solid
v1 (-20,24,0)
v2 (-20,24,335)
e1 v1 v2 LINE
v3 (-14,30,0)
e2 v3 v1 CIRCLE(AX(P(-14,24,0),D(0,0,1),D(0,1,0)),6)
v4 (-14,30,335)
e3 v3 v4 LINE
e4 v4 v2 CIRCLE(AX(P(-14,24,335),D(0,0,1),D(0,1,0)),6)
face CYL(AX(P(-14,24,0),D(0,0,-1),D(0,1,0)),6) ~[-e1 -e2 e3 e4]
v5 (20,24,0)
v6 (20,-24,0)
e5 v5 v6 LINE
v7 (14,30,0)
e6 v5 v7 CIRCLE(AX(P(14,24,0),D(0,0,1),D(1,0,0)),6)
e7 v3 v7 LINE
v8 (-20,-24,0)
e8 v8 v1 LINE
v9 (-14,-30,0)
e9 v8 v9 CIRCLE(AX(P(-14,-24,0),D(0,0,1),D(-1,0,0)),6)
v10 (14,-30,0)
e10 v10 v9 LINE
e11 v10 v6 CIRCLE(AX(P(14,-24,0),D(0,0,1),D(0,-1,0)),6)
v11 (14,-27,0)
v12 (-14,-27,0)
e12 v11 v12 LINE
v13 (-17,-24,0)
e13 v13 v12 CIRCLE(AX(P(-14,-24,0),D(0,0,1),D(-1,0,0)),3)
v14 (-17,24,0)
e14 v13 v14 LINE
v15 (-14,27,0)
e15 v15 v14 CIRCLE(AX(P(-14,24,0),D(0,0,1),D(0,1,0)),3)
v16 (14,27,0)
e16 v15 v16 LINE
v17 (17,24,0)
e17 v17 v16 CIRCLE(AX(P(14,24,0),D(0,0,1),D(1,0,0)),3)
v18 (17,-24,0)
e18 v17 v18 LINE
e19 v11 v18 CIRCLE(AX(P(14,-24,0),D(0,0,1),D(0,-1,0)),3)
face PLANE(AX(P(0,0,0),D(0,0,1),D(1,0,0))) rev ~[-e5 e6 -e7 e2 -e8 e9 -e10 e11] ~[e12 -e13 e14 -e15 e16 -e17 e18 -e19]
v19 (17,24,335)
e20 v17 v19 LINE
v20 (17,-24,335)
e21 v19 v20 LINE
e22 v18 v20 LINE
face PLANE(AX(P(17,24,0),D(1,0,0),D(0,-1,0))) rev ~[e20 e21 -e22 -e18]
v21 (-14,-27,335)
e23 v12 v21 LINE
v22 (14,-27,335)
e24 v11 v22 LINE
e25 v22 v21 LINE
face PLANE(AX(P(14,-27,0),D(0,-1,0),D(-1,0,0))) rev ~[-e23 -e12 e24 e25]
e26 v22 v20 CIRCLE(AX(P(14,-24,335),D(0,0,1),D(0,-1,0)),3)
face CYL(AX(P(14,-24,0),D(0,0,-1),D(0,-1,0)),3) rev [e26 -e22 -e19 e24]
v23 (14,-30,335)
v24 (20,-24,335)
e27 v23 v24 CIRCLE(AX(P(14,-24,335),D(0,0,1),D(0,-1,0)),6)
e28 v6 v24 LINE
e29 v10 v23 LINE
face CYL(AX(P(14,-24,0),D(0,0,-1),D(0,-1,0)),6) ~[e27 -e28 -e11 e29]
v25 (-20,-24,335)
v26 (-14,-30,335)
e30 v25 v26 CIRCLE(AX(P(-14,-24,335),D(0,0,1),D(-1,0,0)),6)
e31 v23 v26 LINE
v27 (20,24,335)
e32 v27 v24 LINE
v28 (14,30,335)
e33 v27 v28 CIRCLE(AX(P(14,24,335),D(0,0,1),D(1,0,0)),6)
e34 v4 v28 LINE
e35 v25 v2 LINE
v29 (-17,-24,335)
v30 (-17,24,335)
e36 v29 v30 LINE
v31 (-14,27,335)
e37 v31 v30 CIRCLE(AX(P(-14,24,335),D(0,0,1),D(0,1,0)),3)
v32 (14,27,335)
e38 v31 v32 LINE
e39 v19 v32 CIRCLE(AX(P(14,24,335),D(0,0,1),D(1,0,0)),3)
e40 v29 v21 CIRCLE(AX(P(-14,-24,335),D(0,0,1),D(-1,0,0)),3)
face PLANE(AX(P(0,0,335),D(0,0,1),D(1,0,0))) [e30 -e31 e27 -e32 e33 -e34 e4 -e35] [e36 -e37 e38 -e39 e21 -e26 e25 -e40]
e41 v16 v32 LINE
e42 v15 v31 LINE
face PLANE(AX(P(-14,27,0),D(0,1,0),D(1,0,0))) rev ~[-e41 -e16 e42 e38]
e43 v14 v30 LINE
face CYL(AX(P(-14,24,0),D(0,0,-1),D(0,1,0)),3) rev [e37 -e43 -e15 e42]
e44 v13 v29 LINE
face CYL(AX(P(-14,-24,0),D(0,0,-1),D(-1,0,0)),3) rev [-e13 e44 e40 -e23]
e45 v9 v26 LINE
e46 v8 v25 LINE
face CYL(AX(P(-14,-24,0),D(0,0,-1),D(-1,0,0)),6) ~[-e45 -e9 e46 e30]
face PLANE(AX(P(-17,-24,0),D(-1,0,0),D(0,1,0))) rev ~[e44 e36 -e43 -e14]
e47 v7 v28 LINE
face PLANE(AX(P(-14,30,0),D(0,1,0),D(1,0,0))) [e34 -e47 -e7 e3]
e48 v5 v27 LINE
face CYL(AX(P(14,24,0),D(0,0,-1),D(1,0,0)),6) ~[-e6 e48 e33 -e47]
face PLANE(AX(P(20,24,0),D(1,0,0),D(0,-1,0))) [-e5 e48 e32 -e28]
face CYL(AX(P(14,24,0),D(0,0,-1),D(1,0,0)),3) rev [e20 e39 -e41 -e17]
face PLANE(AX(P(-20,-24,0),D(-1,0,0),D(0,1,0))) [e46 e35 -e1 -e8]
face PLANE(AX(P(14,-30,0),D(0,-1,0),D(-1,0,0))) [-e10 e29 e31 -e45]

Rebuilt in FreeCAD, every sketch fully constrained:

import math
import FreeCAD as App
import Part
import Sketcher
from FreeCAD import Vector
Q = App.Units.Quantity

doc = App.newDocument("Part")
params = doc.addObject("Spreadsheet::Sheet", "Params")
for row, (alias, value) in enumerate([
    ("sketch1_radius", "6 mm"),
    ("sketch1_radius2", "3 mm"),
    ("pad1_length", "335 mm"),
], start=1):
    params.set(f"A{row}", alias)
    params.set(f"B{row}", "=" + value)
    params.setAlias(f"B{row}", alias)

body = doc.addObject("PartDesign::Body", "Body")

sketch1 = body.newObject("Sketcher::SketchObject", "Sketch")
sketch1.AttachmentSupport = (doc.getObject("XY_Plane"), [""])
sketch1.MapMode = "FlatFace"
sketch1.addGeometry(Part.LineSegment(Vector(-20, 24, 0), Vector(-20, -24, 0)), False)
sketch1.addGeometry(Part.ArcOfCircle(Part.Circle(Vector(-14, -24, 0), Vector(0, 0, 1), 6), math.radians(180), math.radians(270)), False)
sketch1.addGeometry(Part.LineSegment(Vector(-14, -30, 0), Vector(14, -30, 0)), False)
sketch1.addGeometry(Part.ArcOfCircle(Part.Circle(Vector(14, -24, 0), Vector(0, 0, 1), 6), math.radians(-90), math.radians(0)), False)
sketch1.addGeometry(Part.LineSegment(Vector(20, -24, 0), Vector(20, 24, 0)), False)
sketch1.addGeometry(Part.ArcOfCircle(Part.Circle(Vector(14, 24, 0), Vector(0, 0, 1), 6), math.radians(0), math.radians(90)), False)
sketch1.addGeometry(Part.LineSegment(Vector(14, 30, 0), Vector(-14, 30, 0)), False)
sketch1.addGeometry(Part.ArcOfCircle(Part.Circle(Vector(-14, 24, 0), Vector(0, 0, 1), 6), math.radians(90), math.radians(180)), False)
sketch1.addGeometry(Part.ArcOfCircle(Part.Circle(Vector(-14, 24, 0), Vector(0, 0, 1), 3), math.radians(90), math.radians(180)), False)
sketch1.addGeometry(Part.LineSegment(Vector(-14, 27, 0), Vector(14, 27, 0)), False)
sketch1.addGeometry(Part.ArcOfCircle(Part.Circle(Vector(14, 24, 0), Vector(0, 0, 1), 3), math.radians(0), math.radians(90)), False)
sketch1.addGeometry(Part.LineSegment(Vector(17, 24, 0), Vector(17, -24, 0)), False)
sketch1.addGeometry(Part.ArcOfCircle(Part.Circle(Vector(14, -24, 0), Vector(0, 0, 1), 3), math.radians(-90), math.radians(0)), False)
sketch1.addGeometry(Part.LineSegment(Vector(14, -27, 0), Vector(-14, -27, 0)), False)
sketch1.addGeometry(Part.ArcOfCircle(Part.Circle(Vector(-14, -24, 0), Vector(0, 0, 1), 3), math.radians(180), math.radians(270)), False)
sketch1.addGeometry(Part.LineSegment(Vector(-17, -24, 0), Vector(-17, 24, 0)), False)
sketch1.addConstraint(Sketcher.Constraint("Tangent", 0, 2, 1, 1))
sketch1.addConstraint(Sketcher.Constraint("Tangent", 1, 2, 2, 1))
sketch1.addConstraint(Sketcher.Constraint("Tangent", 2, 2, 3, 1))
sketch1.addConstraint(Sketcher.Constraint("Tangent", 3, 2, 4, 1))
sketch1.addConstraint(Sketcher.Constraint("Tangent", 4, 2, 5, 1))
sketch1.addConstraint(Sketcher.Constraint("Tangent", 5, 2, 6, 1))
sketch1.addConstraint(Sketcher.Constraint("Tangent", 6, 2, 7, 1))
sketch1.addConstraint(Sketcher.Constraint("Tangent", 7, 2, 0, 1))
sketch1.addConstraint(Sketcher.Constraint("Tangent", 8, 1, 9, 1))
sketch1.addConstraint(Sketcher.Constraint("Tangent", 9, 2, 10, 2))
sketch1.addConstraint(Sketcher.Constraint("Tangent", 10, 1, 11, 1))
sketch1.addConstraint(Sketcher.Constraint("Tangent", 11, 2, 12, 2))
sketch1.addConstraint(Sketcher.Constraint("Tangent", 12, 1, 13, 1))
sketch1.addConstraint(Sketcher.Constraint("Tangent", 13, 2, 14, 2))
sketch1.addConstraint(Sketcher.Constraint("Tangent", 14, 1, 15, 1))
sketch1.addConstraint(Sketcher.Constraint("Tangent", 15, 2, 8, 2))
sketch1.addConstraint(Sketcher.Constraint("Vertical", 0))
sketch1.addConstraint(Sketcher.Constraint("Horizontal", 2))
sketch1.addConstraint(Sketcher.Constraint("Vertical", 4))
sketch1.addConstraint(Sketcher.Constraint("Horizontal", 6))
sketch1.addConstraint(Sketcher.Constraint("Horizontal", 9))
sketch1.addConstraint(Sketcher.Constraint("Vertical", 11))
sketch1.addConstraint(Sketcher.Constraint("Horizontal", 13))
sketch1.addConstraint(Sketcher.Constraint("Vertical", 15))
sketch1.addConstraint(Sketcher.Constraint("Coincident", 8, 3, 7, 3))
sketch1.addConstraint(Sketcher.Constraint("Coincident", 10, 3, 5, 3))
sketch1.addConstraint(Sketcher.Constraint("Coincident", 12, 3, 3, 3))
sketch1.addConstraint(Sketcher.Constraint("Equal", 1, 3))
sketch1.addConstraint(Sketcher.Constraint("Equal", 3, 5))
sketch1.addConstraint(Sketcher.Constraint("Equal", 5, 7))
sketch1.addConstraint(Sketcher.Constraint("Equal", 12, 14))
sketch1.addConstraint(Sketcher.Constraint("Symmetric", 1, 3, 5, 3, -1, 1))
sketch1.addConstraint(Sketcher.Constraint("Radius", 1, Q("6 mm")))
sketch1.addConstraint(Sketcher.Constraint("Radius", 8, Q("3 mm")))
sketch1.addConstraint(Sketcher.Constraint("DistanceX", 0, 2, -1, 1, Q("20 mm")))
sketch1.addConstraint(Sketcher.Constraint("DistanceY", 1, 2, -1, 1, Q("30 mm")))
sketch1.setExpression("Constraints[32]", "Params.sketch1_radius")
sketch1.setExpression("Constraints[33]", "Params.sketch1_radius2")
pad1 = body.newObject("PartDesign::Pad", "Pad")
pad1.Profile = sketch1
pad1.setExpression("Length", "Params.pad1_length")

doc.recompute()
